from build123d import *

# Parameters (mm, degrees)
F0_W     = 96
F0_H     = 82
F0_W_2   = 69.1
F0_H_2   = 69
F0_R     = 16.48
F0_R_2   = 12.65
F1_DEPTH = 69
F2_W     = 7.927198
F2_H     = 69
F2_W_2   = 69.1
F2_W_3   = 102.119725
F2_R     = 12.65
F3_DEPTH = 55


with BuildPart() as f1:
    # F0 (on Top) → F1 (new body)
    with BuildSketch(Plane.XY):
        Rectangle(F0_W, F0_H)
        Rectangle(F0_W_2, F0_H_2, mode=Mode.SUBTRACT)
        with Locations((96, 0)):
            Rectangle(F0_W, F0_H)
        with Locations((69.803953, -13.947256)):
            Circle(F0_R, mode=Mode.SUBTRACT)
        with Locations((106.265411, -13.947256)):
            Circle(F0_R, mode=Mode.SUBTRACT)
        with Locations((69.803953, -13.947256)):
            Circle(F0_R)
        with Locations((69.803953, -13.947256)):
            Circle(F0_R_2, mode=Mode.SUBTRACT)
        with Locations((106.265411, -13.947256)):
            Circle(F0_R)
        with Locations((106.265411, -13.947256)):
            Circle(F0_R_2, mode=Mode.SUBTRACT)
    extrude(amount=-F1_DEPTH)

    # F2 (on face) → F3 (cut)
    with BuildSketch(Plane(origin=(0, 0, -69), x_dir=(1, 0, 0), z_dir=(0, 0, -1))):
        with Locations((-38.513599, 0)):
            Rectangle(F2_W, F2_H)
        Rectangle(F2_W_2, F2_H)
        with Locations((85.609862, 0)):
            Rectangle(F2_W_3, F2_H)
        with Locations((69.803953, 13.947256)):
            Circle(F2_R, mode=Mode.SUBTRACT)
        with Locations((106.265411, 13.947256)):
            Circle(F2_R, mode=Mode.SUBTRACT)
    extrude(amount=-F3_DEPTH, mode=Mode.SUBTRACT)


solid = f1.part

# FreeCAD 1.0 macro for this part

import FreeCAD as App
import Part
import Sketcher

V = App.Vector
Q = App.Units.Quantity

doc = App.newDocument("Part")
body = doc.addObject("PartDesign::Body", "Body")

# Sketch on XY plane
sketch1 = body.newObject("Sketcher::SketchObject", "Sketch")
sketch1.AttachmentSupport = (doc.getObject("XY_Plane"), [""])
sketch1.MapMode = "FlatFace"
sketch1.addGeometry([
    Part.LineSegment(V(-48, 41, 0), V(-48, -41, 0)),  # 0
    Part.LineSegment(V(-48, -41, 0), V(144, -41, 0)),  # 1
    Part.LineSegment(V(144, -41, 0), V(144, 41, 0)),  # 2
    Part.LineSegment(V(144, 41, 0), V(-48, 41, 0)),  # 3
    Part.Circle(V(70, -14, 0), V(0, 0, 1), 13),  # 4
    Part.Circle(V(106, -14, 0), V(0, 0, 1), 13),  # 5
    Part.LineSegment(V(35, -34, 0), V(-35, -34, 0)),  # 6
    Part.LineSegment(V(-35, -34, 0), V(-35, 34, 0)),  # 7
    Part.LineSegment(V(-35, 34, 0), V(35, 34, 0)),  # 8
    Part.LineSegment(V(35, 34, 0), V(35, -34, 0)),  # 9
], False)
sketch1.addConstraint([
    Sketcher.Constraint("Coincident", 0, 2, 1, 1),
    Sketcher.Constraint("Coincident", 1, 2, 2, 1),
    Sketcher.Constraint("Coincident", 2, 2, 3, 1),
    Sketcher.Constraint("Coincident", 3, 2, 0, 1),
    Sketcher.Constraint("Coincident", 6, 2, 7, 1),
    Sketcher.Constraint("Coincident", 7, 2, 8, 1),
    Sketcher.Constraint("Coincident", 8, 2, 9, 1),
    Sketcher.Constraint("Coincident", 9, 2, 6, 1),
    Sketcher.Constraint("Vertical", 0),
    Sketcher.Constraint("Horizontal", 1),
    Sketcher.Constraint("Vertical", 2),
    Sketcher.Constraint("Horizontal", 3),
    Sketcher.Constraint("Horizontal", 6),
    Sketcher.Constraint("Vertical", 7),
    Sketcher.Constraint("Horizontal", 8),
    Sketcher.Constraint("Vertical", 9),
    Sketcher.Constraint("Equal", 4, 5),
    Sketcher.Constraint("Symmetric", 6, 2, 8, 2, -1, 1),
    Sketcher.Constraint("Horizontal", 4, 3, 5, 3),
    Sketcher.Constraint("Diameter", 4, Q("25.3 mm")),
    Sketcher.Constraint("DistanceX", 1, 1, 1, 2, Q("192 mm")),
    Sketcher.Constraint("DistanceY", 0, 2, 0, 1, Q("82 mm")),
    Sketcher.Constraint("DistanceY", 7, 1, 7, 2, Q("69 mm")),
    Sketcher.Constraint("DistanceX", 6, 2, 6, 1, Q("69.1 mm")),
    Sketcher.Constraint("DistanceX", 0, 2, -1, 1, Q("48 mm")),
    Sketcher.Constraint("DistanceY", 0, 2, -1, 1, Q("41 mm")),
    Sketcher.Constraint("DistanceX", -1, 1, 5, 3, Q("106.265411 mm")),
    Sketcher.Constraint("DistanceX", -1, 1, 4, 3, Q("69.803953 mm")),
    Sketcher.Constraint("DistanceY", 4, 3, -1, 1, Q("13.947256 mm")),
])
pad1 = body.newObject("PartDesign::Pad", "Pad")
pad1.Profile = sketch1
pad1.Length = 69
pad1.Reversed = True

# Sketch on XY plane
sketch2 = body.newObject("Sketcher::SketchObject", "Sketch001")
sketch2.AttachmentSupport = (doc.getObject("XY_Plane"), [""])
sketch2.MapMode = "FlatFace"
sketch2.AttachmentOffset = App.Placement(V(0, 0, -69), App.Rotation())
sketch2.addGeometry([
    Part.LineSegment(V(-42, -34, 0), V(-42, 34, 0)),  # 0
    Part.LineSegment(V(-42, 34, 0), V(137, 34, 0)),  # 1
    Part.LineSegment(V(137, 34, 0), V(137, -34, 0)),  # 2
    Part.LineSegment(V(137, -34, 0), V(-42, -34, 0)),  # 3
    Part.Circle(V(70, -14, 0), V(0, 0, 1), 13),  # 4
    Part.Circle(V(106, -14, 0), V(0, 0, 1), 13),  # 5
], False)
sketch2.addConstraint([
    Sketcher.Constraint("Coincident", 0, 2, 1, 1),
    Sketcher.Constraint("Coincident", 1, 2, 2, 1),
    Sketcher.Constraint("Coincident", 2, 2, 3, 1),
    Sketcher.Constraint("Coincident", 3, 2, 0, 1),
    Sketcher.Constraint("Vertical", 0),
    Sketcher.Constraint("Horizontal", 1),
    Sketcher.Constraint("Vertical", 2),
    Sketcher.Constraint("Horizontal", 3),
    Sketcher.Constraint("Equal", 4, 5),
    Sketcher.Constraint("Horizontal", 4, 3, 5, 3),
    Sketcher.Constraint("Diameter", 4, Q("25.3 mm")),
    Sketcher.Constraint("DistanceY", 0, 1, 0, 2, Q("69 mm")),
    Sketcher.Constraint("DistanceY", -1, 1, 0, 2, Q("34.5 mm")),
    Sketcher.Constraint("DistanceX", 1, 1, 1, 2, Q("179.146923 mm")),
    Sketcher.Constraint("DistanceX", -1, 1, 5, 3, Q("106.265411 mm")),
    Sketcher.Constraint("DistanceX", 0, 2, 4, 3, Q("112.281151 mm")),
    Sketcher.Constraint("DistanceX", 0, 2, 5, 3, Q("148.742609 mm")),
    Sketcher.Constraint("DistanceY", 4, 3, -1, 1, Q("13.947256 mm")),
])
pocket1 = body.newObject("PartDesign::Pocket", "Pocket")
pocket1.Profile = sketch2
pocket1.Length = 55
pocket1.Reversed = True

doc.recompute()
